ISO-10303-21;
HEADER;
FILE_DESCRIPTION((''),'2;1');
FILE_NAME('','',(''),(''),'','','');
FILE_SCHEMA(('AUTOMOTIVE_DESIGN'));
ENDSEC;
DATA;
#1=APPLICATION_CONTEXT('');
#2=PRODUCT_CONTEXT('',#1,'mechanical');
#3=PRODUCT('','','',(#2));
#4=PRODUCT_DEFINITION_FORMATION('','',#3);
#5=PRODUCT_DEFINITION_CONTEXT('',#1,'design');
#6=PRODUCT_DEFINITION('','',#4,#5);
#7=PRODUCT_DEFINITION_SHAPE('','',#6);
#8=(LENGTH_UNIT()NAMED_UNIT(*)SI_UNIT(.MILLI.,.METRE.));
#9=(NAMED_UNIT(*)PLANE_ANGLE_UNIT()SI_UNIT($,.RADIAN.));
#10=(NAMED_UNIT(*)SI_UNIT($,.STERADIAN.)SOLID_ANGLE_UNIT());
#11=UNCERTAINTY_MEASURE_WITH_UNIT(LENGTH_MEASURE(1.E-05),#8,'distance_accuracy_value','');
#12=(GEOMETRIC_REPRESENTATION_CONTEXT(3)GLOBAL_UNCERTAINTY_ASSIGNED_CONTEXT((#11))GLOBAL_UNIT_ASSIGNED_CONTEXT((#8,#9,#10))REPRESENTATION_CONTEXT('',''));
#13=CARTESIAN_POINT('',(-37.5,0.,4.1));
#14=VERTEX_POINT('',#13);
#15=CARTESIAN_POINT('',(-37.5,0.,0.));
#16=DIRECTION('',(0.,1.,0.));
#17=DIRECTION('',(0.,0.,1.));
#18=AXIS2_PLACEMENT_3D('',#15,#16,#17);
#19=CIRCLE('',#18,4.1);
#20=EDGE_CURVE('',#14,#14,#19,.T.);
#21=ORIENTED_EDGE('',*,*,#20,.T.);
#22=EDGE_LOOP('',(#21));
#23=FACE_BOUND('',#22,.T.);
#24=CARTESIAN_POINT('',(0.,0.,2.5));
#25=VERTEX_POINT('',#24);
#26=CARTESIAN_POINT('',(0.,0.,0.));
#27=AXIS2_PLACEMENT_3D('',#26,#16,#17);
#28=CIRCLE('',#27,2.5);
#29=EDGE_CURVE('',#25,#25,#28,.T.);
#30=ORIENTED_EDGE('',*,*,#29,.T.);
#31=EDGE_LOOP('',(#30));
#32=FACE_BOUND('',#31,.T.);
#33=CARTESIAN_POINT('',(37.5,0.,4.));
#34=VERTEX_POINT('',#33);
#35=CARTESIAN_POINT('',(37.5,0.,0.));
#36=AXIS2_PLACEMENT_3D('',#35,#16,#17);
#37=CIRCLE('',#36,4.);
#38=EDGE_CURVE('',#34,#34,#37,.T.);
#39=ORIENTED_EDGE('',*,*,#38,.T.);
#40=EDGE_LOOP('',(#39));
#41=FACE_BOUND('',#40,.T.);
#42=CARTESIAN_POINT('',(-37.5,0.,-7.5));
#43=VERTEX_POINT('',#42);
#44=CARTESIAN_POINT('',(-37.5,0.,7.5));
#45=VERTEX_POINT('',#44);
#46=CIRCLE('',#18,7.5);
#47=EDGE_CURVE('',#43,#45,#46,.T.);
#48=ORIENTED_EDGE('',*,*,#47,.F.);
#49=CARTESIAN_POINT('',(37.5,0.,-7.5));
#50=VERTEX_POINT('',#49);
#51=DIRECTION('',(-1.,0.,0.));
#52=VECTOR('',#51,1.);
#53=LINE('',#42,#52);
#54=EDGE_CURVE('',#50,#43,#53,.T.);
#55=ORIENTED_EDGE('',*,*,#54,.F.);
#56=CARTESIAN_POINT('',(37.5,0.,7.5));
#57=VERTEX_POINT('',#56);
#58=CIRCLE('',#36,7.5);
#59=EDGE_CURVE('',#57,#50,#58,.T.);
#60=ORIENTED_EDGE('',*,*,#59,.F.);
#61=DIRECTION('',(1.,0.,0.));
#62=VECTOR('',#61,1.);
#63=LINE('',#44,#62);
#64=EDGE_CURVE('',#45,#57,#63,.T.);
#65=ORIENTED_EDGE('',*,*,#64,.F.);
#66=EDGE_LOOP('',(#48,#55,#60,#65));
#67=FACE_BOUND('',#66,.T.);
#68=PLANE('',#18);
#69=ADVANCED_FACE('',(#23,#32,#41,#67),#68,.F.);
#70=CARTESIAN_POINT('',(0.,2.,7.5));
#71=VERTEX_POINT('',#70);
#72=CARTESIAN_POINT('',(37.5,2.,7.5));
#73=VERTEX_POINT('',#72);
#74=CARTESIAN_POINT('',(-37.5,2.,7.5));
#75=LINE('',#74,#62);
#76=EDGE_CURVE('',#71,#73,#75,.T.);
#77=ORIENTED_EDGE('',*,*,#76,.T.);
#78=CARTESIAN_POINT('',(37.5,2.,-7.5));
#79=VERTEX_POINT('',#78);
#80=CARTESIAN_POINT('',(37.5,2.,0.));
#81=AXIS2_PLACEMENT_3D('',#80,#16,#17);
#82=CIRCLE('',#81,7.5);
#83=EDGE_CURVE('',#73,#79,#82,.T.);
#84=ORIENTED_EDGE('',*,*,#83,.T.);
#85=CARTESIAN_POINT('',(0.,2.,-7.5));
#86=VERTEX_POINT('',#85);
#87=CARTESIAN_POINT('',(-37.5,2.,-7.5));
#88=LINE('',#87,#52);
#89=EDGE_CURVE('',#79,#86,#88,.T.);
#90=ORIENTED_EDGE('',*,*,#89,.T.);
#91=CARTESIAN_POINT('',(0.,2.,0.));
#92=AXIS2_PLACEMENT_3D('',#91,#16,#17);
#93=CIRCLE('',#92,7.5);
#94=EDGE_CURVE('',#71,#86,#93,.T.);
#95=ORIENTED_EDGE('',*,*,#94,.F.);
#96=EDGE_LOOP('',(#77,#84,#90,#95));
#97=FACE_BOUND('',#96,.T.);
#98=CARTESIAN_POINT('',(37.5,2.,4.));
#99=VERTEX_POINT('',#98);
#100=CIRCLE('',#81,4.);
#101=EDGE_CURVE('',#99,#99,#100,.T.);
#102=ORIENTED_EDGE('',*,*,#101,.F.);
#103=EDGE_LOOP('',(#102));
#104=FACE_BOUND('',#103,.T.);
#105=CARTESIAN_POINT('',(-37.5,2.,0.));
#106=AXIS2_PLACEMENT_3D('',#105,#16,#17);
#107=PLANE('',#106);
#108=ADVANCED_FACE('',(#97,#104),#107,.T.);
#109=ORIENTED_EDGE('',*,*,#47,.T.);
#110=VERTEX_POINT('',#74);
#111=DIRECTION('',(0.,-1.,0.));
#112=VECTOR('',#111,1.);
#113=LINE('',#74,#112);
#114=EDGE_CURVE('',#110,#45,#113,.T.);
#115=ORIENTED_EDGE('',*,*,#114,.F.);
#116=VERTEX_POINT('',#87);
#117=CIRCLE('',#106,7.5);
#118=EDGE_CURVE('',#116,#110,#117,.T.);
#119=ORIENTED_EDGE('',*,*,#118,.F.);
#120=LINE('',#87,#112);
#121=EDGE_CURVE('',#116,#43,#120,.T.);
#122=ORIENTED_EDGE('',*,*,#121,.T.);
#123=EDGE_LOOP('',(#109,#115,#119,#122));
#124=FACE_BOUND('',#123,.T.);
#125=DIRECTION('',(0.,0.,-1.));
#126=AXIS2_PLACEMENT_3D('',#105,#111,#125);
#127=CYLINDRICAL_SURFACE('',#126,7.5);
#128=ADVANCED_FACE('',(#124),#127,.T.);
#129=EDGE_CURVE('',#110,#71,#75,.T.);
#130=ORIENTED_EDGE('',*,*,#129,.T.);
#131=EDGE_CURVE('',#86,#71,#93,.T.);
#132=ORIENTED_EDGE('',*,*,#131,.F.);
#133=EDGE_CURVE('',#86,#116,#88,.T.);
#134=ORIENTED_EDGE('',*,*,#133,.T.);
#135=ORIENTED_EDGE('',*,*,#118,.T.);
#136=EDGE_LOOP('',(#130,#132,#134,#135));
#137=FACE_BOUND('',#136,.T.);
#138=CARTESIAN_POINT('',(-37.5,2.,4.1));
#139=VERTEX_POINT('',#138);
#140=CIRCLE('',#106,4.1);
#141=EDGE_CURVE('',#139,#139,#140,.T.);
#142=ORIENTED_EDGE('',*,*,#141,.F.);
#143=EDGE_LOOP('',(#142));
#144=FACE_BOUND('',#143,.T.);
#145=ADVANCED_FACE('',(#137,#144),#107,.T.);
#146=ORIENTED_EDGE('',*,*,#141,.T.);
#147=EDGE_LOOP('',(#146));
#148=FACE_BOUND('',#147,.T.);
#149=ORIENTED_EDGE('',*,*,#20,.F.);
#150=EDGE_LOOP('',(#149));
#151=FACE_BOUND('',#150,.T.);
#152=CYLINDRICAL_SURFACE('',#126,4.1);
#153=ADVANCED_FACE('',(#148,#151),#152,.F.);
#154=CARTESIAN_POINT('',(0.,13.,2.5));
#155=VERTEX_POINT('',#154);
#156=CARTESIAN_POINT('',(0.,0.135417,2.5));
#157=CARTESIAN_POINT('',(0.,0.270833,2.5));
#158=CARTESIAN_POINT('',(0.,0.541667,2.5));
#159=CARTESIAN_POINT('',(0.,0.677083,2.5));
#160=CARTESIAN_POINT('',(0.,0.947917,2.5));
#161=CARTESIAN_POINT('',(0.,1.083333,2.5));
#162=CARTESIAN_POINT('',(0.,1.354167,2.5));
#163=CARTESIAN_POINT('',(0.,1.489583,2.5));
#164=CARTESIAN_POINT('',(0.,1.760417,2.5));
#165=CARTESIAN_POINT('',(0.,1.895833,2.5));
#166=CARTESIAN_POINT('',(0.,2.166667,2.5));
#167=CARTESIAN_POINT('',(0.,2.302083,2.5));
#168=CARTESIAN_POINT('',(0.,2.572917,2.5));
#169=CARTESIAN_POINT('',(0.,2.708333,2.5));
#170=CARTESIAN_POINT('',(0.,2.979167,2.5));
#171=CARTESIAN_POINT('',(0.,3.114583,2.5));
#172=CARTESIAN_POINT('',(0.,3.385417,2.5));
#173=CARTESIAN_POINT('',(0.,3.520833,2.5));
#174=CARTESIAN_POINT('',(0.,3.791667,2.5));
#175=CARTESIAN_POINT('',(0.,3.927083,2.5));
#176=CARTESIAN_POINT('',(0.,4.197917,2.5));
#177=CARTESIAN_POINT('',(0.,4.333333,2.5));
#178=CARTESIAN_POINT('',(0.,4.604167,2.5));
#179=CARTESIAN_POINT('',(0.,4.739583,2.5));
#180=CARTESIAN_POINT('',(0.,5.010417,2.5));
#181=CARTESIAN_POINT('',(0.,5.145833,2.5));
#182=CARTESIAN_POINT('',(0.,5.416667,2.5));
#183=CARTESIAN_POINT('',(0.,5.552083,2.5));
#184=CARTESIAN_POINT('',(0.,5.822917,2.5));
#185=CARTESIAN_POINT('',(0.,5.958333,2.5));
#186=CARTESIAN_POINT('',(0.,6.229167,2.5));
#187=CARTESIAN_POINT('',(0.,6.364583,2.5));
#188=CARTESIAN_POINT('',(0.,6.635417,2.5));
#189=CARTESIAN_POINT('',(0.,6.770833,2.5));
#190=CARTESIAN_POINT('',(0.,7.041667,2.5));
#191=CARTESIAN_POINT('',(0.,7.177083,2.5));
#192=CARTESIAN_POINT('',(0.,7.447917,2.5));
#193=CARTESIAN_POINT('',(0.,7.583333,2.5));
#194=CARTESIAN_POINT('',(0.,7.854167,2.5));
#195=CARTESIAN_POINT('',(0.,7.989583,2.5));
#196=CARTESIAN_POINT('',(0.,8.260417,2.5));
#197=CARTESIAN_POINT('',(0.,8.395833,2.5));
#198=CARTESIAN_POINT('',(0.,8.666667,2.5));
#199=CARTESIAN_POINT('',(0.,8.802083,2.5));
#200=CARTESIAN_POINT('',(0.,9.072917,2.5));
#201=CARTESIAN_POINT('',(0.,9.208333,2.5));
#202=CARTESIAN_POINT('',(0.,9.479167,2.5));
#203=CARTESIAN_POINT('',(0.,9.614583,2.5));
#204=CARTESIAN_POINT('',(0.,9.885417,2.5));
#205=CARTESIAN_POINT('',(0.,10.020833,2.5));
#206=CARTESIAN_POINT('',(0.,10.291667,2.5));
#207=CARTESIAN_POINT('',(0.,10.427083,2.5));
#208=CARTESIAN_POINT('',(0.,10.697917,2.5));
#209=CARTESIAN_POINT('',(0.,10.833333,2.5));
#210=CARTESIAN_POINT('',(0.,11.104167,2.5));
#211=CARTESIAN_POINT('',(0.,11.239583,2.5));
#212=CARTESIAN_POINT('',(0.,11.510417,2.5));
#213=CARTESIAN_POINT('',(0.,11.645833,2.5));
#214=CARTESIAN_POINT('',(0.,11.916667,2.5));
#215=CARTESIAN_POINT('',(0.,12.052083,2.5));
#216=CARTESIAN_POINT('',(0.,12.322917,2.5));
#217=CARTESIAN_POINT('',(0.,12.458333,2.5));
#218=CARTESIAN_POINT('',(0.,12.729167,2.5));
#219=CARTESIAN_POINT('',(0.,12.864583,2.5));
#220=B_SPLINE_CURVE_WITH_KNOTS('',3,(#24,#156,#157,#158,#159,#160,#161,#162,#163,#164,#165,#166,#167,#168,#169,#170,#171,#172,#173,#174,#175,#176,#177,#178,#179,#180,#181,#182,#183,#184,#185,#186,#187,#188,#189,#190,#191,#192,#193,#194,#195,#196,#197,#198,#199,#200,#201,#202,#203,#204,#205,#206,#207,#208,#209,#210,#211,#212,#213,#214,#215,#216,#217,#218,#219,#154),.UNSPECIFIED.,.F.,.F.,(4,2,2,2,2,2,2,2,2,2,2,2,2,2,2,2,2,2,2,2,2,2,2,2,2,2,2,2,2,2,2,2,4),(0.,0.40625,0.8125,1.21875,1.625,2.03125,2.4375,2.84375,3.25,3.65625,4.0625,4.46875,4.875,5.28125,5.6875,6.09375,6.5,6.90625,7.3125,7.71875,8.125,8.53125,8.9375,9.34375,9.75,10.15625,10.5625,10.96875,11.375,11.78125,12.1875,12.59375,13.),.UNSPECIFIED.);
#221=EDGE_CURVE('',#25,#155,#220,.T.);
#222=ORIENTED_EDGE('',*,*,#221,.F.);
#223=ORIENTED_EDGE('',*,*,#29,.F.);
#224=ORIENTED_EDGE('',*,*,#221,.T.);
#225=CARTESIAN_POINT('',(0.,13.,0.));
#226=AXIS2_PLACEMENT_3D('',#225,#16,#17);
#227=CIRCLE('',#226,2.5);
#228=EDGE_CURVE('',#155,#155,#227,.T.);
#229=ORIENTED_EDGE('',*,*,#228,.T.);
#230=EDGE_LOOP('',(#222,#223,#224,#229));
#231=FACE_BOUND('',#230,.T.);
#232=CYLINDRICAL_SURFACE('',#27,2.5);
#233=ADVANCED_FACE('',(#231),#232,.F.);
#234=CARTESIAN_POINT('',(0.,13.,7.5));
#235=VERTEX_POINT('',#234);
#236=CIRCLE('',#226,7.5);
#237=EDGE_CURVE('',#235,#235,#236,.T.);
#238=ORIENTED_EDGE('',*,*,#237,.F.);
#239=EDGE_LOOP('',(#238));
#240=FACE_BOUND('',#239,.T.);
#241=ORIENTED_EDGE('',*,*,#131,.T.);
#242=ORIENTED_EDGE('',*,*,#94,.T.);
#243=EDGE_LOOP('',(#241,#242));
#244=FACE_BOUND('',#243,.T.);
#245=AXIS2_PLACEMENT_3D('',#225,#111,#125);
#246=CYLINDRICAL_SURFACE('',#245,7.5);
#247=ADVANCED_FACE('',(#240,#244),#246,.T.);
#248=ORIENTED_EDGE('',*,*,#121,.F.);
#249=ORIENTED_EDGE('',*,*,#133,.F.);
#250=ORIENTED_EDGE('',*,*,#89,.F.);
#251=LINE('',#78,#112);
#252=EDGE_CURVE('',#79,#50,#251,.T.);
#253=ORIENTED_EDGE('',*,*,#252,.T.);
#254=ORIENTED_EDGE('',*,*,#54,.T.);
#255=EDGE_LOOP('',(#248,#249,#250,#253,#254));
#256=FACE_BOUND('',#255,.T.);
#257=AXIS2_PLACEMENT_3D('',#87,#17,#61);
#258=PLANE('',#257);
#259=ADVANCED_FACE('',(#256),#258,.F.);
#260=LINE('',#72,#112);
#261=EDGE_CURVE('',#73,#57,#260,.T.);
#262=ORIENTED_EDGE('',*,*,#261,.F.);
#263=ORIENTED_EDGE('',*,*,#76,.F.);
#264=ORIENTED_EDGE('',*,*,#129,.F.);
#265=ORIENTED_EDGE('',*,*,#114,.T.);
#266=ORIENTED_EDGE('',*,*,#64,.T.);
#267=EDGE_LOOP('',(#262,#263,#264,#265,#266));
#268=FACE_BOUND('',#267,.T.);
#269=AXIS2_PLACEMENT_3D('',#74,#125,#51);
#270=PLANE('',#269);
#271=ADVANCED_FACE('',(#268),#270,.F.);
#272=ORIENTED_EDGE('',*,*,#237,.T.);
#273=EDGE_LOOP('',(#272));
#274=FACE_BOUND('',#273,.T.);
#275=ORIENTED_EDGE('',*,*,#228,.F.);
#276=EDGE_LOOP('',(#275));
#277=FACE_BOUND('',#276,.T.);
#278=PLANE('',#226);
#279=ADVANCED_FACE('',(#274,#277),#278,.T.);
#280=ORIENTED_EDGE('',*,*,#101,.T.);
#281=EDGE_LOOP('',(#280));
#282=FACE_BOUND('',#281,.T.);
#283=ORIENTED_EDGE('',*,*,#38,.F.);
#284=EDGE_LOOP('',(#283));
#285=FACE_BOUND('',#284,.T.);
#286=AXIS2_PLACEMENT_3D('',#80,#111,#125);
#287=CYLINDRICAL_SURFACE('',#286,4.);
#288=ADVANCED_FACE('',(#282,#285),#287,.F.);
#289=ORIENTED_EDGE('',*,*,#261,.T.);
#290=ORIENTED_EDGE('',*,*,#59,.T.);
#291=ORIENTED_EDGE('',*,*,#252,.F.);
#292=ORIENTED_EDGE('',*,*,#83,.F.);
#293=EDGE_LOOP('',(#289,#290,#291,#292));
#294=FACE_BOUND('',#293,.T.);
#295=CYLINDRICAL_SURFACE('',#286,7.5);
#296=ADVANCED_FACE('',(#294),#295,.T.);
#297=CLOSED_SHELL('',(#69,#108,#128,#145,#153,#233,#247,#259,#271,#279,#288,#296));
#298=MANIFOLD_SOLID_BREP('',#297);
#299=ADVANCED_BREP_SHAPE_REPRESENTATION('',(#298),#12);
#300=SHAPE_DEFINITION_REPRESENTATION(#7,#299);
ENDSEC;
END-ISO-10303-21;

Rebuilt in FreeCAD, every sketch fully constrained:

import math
import FreeCAD as App
import Part
import Sketcher
from FreeCAD import Vector

doc = App.newDocument("Part")
params = doc.addObject("Spreadsheet::Sheet", "Params")
for row, (alias, value) in enumerate([
    ("sketch1_diameter", "8 mm"),
    ("sketch1_diameter2", "8.2 mm"),
    ("sketch1_radius", "7.5 mm"),
    ("sketch1_width", "75 mm"),
    ("pad1_length", "2 mm"),
    ("sketch2_diameter", "15 mm"),
    ("pad2_length", "11 mm"),
    ("sketch3_diameter", "5 mm"),
], start=1):
    params.set(f"A{row}", alias)
    params.set(f"B{row}", "=" + value)
    params.setAlias(f"B{row}", alias)

body = doc.addObject("PartDesign::Body", "Body")

sketch1 = body.newObject("Sketcher::SketchObject", "Sketch")
sketch1.AttachmentSupport = (doc.getObject("XZ_Plane"), [""])
sketch1.MapMode = "FlatFace"
sketch1.addGeometry([
    Part.LineSegment(Vector(37.5, -7.5, 0), Vector(-37.5, -7.5, 0)),
    Part.ArcOfCircle(Part.Circle(Vector(-37.5, 0, 0), Vector(0, 0, 1), 7.5), math.radians(90), math.radians(270)),
    Part.LineSegment(Vector(-37.5, 7.5, 0), Vector(37.5, 7.5, 0)),
    Part.ArcOfCircle(Part.Circle(Vector(37.5, 0, 0), Vector(0, 0, 1), 7.5), math.radians(-90), math.radians(90)),
    Part.Circle(Vector(37.5, 0, 0), Vector(0, 0, 1), 4),
    Part.Circle(Vector(-37.5, 0, 0), Vector(0, 0, 1), 4.1),
], False)
sketch1.addConstraint([
    Sketcher.Constraint("Tangent", 0, 2, 1, 2),
    Sketcher.Constraint("Tangent", 1, 1, 2, 1),
    Sketcher.Constraint("Tangent", 2, 2, 3, 2),
    Sketcher.Constraint("Tangent", 3, 1, 0, 1),
    Sketcher.Constraint("Horizontal", 0),
    Sketcher.Constraint("Horizontal", 2),
    Sketcher.Constraint("Coincident", 4, 3, 3, 3),
    Sketcher.Constraint("Coincident", 5, 3, 1, 3),
    Sketcher.Constraint("Symmetric", 1, 3, 3, 3, -1, 1),
    Sketcher.Constraint("Diameter", 4, 8.0),
    Sketcher.Constraint("Diameter", 5, 8.2),
    Sketcher.Constraint("Radius", 1, 7.5),
    Sketcher.Constraint("DistanceX", 0, 2, 0, 1, 75.0),
])
sketch1.setExpression("Constraints[9]", "Params.sketch1_diameter")
sketch1.setExpression("Constraints[10]", "Params.sketch1_diameter2")
sketch1.setExpression("Constraints[11]", "Params.sketch1_radius")
sketch1.setExpression("Constraints[12]", "Params.sketch1_width")
pad1 = body.newObject("PartDesign::Pad", "Pad")
pad1.Profile = sketch1
pad1.setExpression("Length", "Params.pad1_length")
pad1.Reversed = True

sketch2 = body.newObject("Sketcher::SketchObject", "Sketch001")
sketch2.AttachmentSupport = (doc.getObject("XZ_Plane"), [""])
sketch2.MapMode = "FlatFace"
sketch2.AttachmentOffset = App.Placement(Vector(0, 0, -2), App.Rotation())
sketch2.addGeometry(Part.Circle(Vector(0, 0, 0), Vector(0, 0, 1), 8), False)
sketch2.addConstraint([
    Sketcher.Constraint("Coincident", 0, 3, -1, 1),
    Sketcher.Constraint("Diameter", 0, 15.0),
])
sketch2.setExpression("Constraints[1]", "Params.sketch2_diameter")
pad2 = body.newObject("PartDesign::Pad", "Pad001")
pad2.Profile = sketch2
pad2.setExpression("Length", "Params.pad2_length")
pad2.Reversed = True

sketch3 = body.newObject("Sketcher::SketchObject", "Sketch002")
sketch3.AttachmentSupport = (doc.getObject("XZ_Plane"), [""])
sketch3.MapMode = "FlatFace"
sketch3.AttachmentOffset = App.Placement(Vector(0, 0, -13), App.Rotation())
sketch3.addGeometry(Part.Circle(Vector(0, 0, 0), Vector(0, 0, 1), 2.5), False)
sketch3.addConstraint([
    Sketcher.Constraint("Coincident", 0, 3, -1, 1),
    Sketcher.Constraint("Diameter", 0, 5.0),
])
sketch3.setExpression("Constraints[1]", "Params.sketch3_diameter")
pocket1 = body.newObject("PartDesign::Pocket", "Pocket")
pocket1.Profile = sketch3
pocket1.Type = "ThroughAll"
pocket1.Reversed = True

doc.recompute()
